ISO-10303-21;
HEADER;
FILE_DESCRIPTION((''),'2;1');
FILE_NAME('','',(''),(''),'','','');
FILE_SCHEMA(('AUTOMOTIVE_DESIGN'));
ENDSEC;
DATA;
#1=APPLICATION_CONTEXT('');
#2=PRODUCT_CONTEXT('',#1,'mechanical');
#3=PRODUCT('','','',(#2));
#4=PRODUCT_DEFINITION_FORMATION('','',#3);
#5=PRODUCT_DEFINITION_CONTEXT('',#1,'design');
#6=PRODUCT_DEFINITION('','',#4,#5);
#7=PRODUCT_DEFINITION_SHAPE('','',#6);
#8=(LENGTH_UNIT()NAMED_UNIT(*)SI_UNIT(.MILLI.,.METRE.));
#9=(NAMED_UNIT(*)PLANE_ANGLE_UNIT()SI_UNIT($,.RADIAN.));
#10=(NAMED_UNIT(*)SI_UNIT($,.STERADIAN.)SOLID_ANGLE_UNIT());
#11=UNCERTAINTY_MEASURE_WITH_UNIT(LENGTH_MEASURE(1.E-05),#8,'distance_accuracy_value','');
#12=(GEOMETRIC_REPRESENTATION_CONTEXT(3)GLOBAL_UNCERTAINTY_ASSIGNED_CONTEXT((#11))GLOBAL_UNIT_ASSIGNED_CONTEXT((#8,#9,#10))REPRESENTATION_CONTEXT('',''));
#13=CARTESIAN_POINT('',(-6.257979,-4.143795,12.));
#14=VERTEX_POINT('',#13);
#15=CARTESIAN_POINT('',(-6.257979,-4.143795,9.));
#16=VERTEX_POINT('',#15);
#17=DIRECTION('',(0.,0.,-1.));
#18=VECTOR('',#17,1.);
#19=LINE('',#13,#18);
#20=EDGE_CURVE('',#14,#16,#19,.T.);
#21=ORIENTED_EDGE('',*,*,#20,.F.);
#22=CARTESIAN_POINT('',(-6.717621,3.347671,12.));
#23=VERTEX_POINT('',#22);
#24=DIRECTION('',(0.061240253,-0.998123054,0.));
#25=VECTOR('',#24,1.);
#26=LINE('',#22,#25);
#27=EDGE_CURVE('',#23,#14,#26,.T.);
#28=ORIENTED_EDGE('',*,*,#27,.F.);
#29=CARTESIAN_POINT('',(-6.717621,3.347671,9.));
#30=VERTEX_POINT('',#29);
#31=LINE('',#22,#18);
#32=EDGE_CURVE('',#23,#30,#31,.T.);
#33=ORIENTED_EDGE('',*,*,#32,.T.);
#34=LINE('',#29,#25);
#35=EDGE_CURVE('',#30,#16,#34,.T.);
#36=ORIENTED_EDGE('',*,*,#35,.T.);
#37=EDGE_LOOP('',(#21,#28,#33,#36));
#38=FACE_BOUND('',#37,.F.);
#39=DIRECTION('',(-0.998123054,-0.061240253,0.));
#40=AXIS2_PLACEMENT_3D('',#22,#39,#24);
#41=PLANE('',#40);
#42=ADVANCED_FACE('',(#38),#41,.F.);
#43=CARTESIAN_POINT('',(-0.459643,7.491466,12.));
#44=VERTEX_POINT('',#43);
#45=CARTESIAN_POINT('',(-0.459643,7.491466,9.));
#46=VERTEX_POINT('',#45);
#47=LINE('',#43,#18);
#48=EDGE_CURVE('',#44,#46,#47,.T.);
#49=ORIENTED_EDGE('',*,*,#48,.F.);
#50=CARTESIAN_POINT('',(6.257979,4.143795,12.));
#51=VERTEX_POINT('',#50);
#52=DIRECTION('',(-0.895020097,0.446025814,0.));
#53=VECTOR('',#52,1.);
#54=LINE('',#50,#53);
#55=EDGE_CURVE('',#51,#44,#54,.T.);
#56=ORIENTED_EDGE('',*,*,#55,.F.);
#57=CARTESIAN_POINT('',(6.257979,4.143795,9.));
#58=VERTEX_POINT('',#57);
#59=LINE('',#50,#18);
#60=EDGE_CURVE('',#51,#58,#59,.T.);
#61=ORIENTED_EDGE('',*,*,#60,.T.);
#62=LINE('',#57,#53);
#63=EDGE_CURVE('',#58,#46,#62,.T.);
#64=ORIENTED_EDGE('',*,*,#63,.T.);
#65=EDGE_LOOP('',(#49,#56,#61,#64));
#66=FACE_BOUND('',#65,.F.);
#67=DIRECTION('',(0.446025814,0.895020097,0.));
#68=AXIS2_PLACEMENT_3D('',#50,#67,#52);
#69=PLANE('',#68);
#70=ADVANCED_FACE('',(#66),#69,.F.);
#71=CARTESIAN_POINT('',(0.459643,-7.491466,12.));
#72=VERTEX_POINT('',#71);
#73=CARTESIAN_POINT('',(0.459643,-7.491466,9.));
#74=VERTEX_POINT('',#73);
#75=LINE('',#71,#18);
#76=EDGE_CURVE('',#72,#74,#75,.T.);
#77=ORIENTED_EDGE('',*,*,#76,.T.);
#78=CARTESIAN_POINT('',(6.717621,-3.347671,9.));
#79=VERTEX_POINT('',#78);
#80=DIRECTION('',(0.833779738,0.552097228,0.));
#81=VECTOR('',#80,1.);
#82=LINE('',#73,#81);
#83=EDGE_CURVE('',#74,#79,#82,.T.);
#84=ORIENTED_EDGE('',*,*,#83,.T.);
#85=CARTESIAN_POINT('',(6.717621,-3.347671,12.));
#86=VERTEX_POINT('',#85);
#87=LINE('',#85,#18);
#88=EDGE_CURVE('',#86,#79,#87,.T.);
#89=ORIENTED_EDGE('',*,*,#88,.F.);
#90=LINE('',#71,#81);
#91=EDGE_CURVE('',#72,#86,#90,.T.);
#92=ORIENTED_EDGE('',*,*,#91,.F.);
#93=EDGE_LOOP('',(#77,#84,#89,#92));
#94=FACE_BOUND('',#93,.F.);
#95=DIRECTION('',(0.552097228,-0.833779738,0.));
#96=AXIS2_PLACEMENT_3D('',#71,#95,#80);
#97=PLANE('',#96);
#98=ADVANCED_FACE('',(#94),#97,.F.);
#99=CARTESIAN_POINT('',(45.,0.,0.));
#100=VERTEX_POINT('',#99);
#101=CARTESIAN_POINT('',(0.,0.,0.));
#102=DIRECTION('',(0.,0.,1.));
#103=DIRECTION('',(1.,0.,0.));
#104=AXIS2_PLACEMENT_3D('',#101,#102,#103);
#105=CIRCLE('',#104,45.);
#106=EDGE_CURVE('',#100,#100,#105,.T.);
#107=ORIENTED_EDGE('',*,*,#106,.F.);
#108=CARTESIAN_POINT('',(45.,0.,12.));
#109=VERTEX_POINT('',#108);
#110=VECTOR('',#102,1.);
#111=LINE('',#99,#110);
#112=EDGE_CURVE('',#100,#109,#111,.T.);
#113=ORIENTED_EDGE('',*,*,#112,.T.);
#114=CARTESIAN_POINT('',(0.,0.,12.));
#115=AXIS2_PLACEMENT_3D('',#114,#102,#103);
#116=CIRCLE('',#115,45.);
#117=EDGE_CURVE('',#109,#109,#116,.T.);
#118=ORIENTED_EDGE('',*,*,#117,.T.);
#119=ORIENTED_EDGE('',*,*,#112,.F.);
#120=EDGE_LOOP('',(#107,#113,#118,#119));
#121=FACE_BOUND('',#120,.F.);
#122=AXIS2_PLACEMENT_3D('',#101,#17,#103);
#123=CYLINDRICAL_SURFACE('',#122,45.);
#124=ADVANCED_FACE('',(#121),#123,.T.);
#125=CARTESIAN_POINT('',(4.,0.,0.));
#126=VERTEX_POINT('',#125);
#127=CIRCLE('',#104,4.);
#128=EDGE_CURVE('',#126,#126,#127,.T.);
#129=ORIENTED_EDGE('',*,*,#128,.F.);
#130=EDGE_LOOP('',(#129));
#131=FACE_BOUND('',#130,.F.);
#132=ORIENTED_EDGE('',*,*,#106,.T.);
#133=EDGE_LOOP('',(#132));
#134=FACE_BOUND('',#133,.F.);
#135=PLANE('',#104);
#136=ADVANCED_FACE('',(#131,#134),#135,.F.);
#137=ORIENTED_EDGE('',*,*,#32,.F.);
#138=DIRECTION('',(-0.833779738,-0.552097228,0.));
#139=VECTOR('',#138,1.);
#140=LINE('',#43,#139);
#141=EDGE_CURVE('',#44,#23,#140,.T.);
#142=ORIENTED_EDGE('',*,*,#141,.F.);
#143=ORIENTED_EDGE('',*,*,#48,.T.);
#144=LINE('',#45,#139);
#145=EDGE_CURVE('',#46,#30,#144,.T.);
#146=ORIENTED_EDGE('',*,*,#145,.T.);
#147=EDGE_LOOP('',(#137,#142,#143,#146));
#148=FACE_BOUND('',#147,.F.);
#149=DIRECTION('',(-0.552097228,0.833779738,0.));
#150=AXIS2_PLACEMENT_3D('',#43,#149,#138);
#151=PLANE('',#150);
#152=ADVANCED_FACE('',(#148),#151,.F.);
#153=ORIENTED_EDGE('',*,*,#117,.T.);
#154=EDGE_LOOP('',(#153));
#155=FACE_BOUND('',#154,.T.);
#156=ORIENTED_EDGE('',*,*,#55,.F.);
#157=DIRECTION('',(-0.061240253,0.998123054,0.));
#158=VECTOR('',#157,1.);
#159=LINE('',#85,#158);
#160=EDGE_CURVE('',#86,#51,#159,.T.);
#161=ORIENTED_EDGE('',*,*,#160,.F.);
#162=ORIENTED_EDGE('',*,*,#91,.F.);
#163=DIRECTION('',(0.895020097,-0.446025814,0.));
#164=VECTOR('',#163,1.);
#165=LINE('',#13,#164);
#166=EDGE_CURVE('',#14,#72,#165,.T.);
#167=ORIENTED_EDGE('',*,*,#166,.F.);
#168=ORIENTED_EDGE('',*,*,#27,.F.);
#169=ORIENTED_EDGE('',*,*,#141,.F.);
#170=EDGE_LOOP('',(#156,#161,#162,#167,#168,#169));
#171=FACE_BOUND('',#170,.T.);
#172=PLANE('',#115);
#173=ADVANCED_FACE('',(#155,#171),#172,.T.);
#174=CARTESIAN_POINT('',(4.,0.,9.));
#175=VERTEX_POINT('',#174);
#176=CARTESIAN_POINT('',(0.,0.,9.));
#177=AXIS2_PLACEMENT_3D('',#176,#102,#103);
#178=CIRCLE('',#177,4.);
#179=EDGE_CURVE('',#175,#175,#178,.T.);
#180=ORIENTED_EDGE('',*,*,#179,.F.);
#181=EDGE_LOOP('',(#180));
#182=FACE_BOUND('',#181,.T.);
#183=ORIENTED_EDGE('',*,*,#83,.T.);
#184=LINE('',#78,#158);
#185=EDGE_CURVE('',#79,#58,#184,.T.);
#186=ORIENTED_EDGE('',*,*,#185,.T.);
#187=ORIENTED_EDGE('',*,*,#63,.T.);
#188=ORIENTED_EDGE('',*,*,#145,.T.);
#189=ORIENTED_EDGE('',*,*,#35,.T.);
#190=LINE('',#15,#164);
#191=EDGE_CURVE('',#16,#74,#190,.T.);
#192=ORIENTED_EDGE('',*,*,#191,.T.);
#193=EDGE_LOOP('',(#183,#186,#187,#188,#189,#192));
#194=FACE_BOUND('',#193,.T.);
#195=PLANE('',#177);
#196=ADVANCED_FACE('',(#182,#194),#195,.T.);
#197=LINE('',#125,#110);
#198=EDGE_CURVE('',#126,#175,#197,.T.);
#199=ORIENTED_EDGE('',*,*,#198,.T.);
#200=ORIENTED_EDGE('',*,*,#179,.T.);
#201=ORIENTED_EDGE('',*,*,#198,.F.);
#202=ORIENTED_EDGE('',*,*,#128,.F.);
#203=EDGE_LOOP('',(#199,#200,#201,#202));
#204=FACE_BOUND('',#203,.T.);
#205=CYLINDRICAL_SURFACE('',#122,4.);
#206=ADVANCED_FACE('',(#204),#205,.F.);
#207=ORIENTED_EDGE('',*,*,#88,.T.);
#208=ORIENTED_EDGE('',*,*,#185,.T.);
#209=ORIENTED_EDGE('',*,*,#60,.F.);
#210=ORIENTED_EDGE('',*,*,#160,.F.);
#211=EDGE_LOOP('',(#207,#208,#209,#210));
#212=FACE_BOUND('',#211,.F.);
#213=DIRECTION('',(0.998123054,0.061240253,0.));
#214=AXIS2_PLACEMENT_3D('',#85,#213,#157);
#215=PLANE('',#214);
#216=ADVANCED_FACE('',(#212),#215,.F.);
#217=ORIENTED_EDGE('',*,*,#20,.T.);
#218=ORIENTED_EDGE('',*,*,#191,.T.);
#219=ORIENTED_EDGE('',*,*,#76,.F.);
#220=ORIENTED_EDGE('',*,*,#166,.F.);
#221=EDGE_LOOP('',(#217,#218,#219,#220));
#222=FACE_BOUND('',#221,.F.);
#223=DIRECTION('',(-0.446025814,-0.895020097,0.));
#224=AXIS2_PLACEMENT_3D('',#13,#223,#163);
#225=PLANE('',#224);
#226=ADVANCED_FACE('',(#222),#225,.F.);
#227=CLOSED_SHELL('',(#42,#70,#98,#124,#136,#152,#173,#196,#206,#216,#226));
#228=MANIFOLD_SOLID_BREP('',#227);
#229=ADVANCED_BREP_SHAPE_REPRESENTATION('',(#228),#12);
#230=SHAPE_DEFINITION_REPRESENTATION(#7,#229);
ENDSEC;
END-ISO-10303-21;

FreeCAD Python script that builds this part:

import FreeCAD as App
import Part
import Sketcher

V = App.Vector
Q = App.Units.Quantity

doc = App.newDocument("Part")
params = doc.addObject("Spreadsheet::Sheet", "Params")
for row, (alias, value) in enumerate([
    ("sketch1_diameter", "90 mm"),
    ("sketch1_diameter2", "8 mm"),
    ("pad1_length", "12 mm"),
    ("sketch2_diameter", "8 mm"),
    ("pocket1_length", "3 mm"),
], start=1):
    params.set(f"A{row}", alias)
    params.set(f"B{row}", "=" + value)
    params.setAlias(f"B{row}", alias)

body = doc.addObject("PartDesign::Body", "Body")

sketch1 = body.newObject("Sketcher::SketchObject", "Sketch")
sketch1.AttachmentSupport = (doc.getObject("XY_Plane"), [""])
sketch1.MapMode = "FlatFace"
sketch1.addGeometry(Part.Circle(V(0, 0, 0), V(0, 0, 1), 45), False)
sketch1.addGeometry(Part.Circle(V(0, 0, 0), V(0, 0, 1), 4), False)
sketch1.addConstraint(Sketcher.Constraint("Coincident", 0, 3, -1, 1))
sketch1.addConstraint(Sketcher.Constraint("Coincident", 1, 3, -1, 1))
sketch1.addConstraint(Sketcher.Constraint("Diameter", 0, Q("90 mm")))
sketch1.addConstraint(Sketcher.Constraint("Diameter", 1, Q("8 mm")))
sketch1.setExpression("Constraints[2]", "Params.sketch1_diameter")
sketch1.setExpression("Constraints[3]", "Params.sketch1_diameter2")
pad1 = body.newObject("PartDesign::Pad", "Pad")
pad1.Profile = sketch1
pad1.setExpression("Length", "Params.pad1_length")

sketch2 = body.newObject("Sketcher::SketchObject", "Sketch001")
sketch2.AttachmentSupport = (doc.getObject("XY_Plane"), [""])
sketch2.MapMode = "FlatFace"
sketch2.AttachmentOffset = App.Placement(V(0, 0, 12), App.Rotation())
sketch2.addGeometry(Part.LineSegment(V(0.5, -7.5, 0), V(6.7, -3.3, 0)), False)
sketch2.addGeometry(Part.LineSegment(V(6.7, -3.3, 0), V(6.3, 4.1, 0)), False)
sketch2.addGeometry(Part.LineSegment(V(6.3, 4.1, 0), V(-0.5, 7.5, 0)), False)
sketch2.addGeometry(Part.LineSegment(V(-0.5, 7.5, 0), V(-6.7, 3.3, 0)), False)
sketch2.addGeometry(Part.LineSegment(V(-6.7, 3.3, 0), V(-6.3, -4.1, 0)), False)
sketch2.addGeometry(Part.LineSegment(V(-6.3, -4.1, 0), V(0.5, -7.5, 0)), False)
sketch2.addGeometry(Part.Circle(V(0, 0, 0), V(0, 0, 1), 4), False)
sketch2.addConstraint(Sketcher.Constraint("Coincident", 0, 2, 1, 1))
sketch2.addConstraint(Sketcher.Constraint("Coincident", 1, 2, 2, 1))
sketch2.addConstraint(Sketcher.Constraint("Coincident", 2, 2, 3, 1))
sketch2.addConstraint(Sketcher.Constraint("Coincident", 3, 2, 4, 1))
sketch2.addConstraint(Sketcher.Constraint("Coincident", 4, 2, 5, 1))
sketch2.addConstraint(Sketcher.Constraint("Coincident", 5, 2, 0, 1))
sketch2.addConstraint(Sketcher.Constraint("Coincident", 6, 3, -1, 1))
sketch2.addConstraint(Sketcher.Constraint("Symmetric", 0, 2, 3, 2, -1, 1))
sketch2.addConstraint(Sketcher.Constraint("Symmetric", 1, 2, 4, 2, -1, 1))
sketch2.addConstraint(Sketcher.Constraint("Symmetric", 2, 2, 5, 2, -1, 1))
sketch2.addConstraint(Sketcher.Constraint("Equal", 0, 1))
sketch2.addConstraint(Sketcher.Constraint("Equal", 1, 2))
sketch2.addConstraint(Sketcher.Constraint("Diameter", 6, Q("8 mm")))
sketch2.addConstraint(Sketcher.Constraint("DistanceX", 3, 2, 1, 2, Q("12.9756 mm")))
sketch2.addConstraint(Sketcher.Constraint("DistanceX", -1, 1, 0, 2, Q("6.717621 mm")))
sketch2.addConstraint(Sketcher.Constraint("DistanceY", 0, 2, -1, 1, Q("3.347671 mm")))
sketch2.addConstraint(Sketcher.Constraint("DistanceX", 2, 2, 1, 2, Q("6.717622 mm")))
sketch2.setExpression("Constraints[12]", "Params.sketch2_diameter")
pocket1 = body.newObject("PartDesign::Pocket", "Pocket")
pocket1.Profile = sketch2
pocket1.setExpression("Length", "Params.pocket1_length")

doc.recompute()
